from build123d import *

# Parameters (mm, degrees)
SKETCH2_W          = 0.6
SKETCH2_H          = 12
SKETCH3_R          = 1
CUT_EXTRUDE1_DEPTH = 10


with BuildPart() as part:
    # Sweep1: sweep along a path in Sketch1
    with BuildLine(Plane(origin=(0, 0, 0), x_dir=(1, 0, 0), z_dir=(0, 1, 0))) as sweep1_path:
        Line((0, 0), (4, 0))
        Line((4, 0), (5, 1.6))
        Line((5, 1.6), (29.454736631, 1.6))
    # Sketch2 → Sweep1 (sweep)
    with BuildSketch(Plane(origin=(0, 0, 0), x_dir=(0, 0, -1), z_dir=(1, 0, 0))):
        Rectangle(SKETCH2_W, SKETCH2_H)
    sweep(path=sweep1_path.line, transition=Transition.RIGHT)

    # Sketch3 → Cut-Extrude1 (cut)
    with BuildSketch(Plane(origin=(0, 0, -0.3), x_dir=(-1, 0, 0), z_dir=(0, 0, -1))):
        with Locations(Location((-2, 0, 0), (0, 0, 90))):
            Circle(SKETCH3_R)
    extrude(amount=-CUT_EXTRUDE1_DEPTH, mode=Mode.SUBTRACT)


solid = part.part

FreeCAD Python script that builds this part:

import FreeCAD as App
import Part
import Sketcher
Q = App.Units.Quantity

doc = App.newDocument("Part")
body = doc.addObject("PartDesign::Body", "Body")

# Sketch on YZ plane
sketch1 = doc.addObject("Sketcher::SketchObject", "Sketch")
body.addObject(sketch1)
sketch1.AttachmentSupport = (doc.YZ_Plane, [""])
sketch1.MapMode = "FlatFace"
sketch1.addGeometry([
    Part.LineSegment(App.Vector(6, 0.3, 0), App.Vector(-6, 0.3, 0)),
    Part.LineSegment(App.Vector(-6, 0.3, 0), App.Vector(-6, -0.3, 0)),
    Part.LineSegment(App.Vector(-6, -0.3, 0), App.Vector(6, -0.3, 0)),
    Part.LineSegment(App.Vector(6, -0.3, 0), App.Vector(6, 0.3, 0)),
], False)
sketch1.addConstraint([
    Sketcher.Constraint("Coincident", 0, 2, 1, 1),
    Sketcher.Constraint("Coincident", 1, 2, 2, 1),
    Sketcher.Constraint("Coincident", 2, 2, 3, 1),
    Sketcher.Constraint("Coincident", 3, 2, 0, 1),
    Sketcher.Constraint("Horizontal", 0),
    Sketcher.Constraint("Vertical", 1),
    Sketcher.Constraint("Horizontal", 2),
    Sketcher.Constraint("Vertical", 3),
    Sketcher.Constraint("Symmetric", 0, 2, 2, 2, -1, 1),
    Sketcher.Constraint("DistanceX", 0, 2, 0, 1, Q("12 mm")),
    Sketcher.Constraint("DistanceY", 1, 2, 1, 1, Q("0.6 mm")),
])

# Sketch on XZ plane
sketch2 = doc.addObject("Sketcher::SketchObject", "Sketch001")
body.addObject(sketch2)
sketch2.AttachmentSupport = (doc.XZ_Plane, [""])
sketch2.MapMode = "FlatFace"
sketch2.addGeometry([
    Part.LineSegment(App.Vector(0, 0, 0), App.Vector(4, 0, 0)),
    Part.LineSegment(App.Vector(4, 0, 0), App.Vector(5, -1.6, 0)),
    Part.LineSegment(App.Vector(5, -1.6, 0), App.Vector(29.5, -1.6, 0)),
], False)
sketch2.addConstraint([
    Sketcher.Constraint("Coincident", 0, 2, 1, 1),
    Sketcher.Constraint("Coincident", 1, 2, 2, 1),
    Sketcher.Constraint("Horizontal", 0),
    Sketcher.Constraint("Horizontal", 2),
    Sketcher.Constraint("Coincident", 0, 1, -1, 1),
    Sketcher.Constraint("DistanceX", 0, 1, 0, 2, Q("4 mm")),
    Sketcher.Constraint("DistanceX", -1, 1, 1, 2, Q("5 mm")),
    Sketcher.Constraint("DistanceY", 1, 2, -1, 1, Q("1.6 mm")),
    Sketcher.Constraint("DistanceX", 2, 1, 2, 2, Q("24.454737 mm")),
])
doc.recompute()

additivepipe = doc.addObject("PartDesign::AdditivePipe", "AdditivePipe")
body.addObject(additivepipe)
additivepipe.Profile = sketch1
additivepipe.Spine = (sketch2, ["Edge1", "Edge2", "Edge3"])
additivepipe.Transition = "Right corner"

# Sketch on XY plane
sketch3 = doc.addObject("Sketcher::SketchObject", "Sketch002")
body.addObject(sketch3)
sketch3.AttachmentSupport = (doc.XY_Plane, [""])
sketch3.MapMode = "FlatFace"
sketch3.AttachmentOffset = App.Placement(App.Vector(0, 0, -0.3), App.Rotation())
sketch3.addGeometry(Part.Circle(App.Vector(2, 0, 0), App.Vector(0, 0, 1), 1), False)
sketch3.addConstraint([
    Sketcher.Constraint("PointOnObject", 0, 3, -1),
    Sketcher.Constraint("Diameter", 0, Q("2 mm")),
    Sketcher.Constraint("DistanceX", -1, 1, 0, 3, Q("2 mm")),
])
pocket1 = doc.addObject("PartDesign::Pocket", "Pocket")
body.addObject(pocket1)
pocket1.Profile = sketch3
pocket1.Length = 10
pocket1.Reversed = True

doc.recompute()
